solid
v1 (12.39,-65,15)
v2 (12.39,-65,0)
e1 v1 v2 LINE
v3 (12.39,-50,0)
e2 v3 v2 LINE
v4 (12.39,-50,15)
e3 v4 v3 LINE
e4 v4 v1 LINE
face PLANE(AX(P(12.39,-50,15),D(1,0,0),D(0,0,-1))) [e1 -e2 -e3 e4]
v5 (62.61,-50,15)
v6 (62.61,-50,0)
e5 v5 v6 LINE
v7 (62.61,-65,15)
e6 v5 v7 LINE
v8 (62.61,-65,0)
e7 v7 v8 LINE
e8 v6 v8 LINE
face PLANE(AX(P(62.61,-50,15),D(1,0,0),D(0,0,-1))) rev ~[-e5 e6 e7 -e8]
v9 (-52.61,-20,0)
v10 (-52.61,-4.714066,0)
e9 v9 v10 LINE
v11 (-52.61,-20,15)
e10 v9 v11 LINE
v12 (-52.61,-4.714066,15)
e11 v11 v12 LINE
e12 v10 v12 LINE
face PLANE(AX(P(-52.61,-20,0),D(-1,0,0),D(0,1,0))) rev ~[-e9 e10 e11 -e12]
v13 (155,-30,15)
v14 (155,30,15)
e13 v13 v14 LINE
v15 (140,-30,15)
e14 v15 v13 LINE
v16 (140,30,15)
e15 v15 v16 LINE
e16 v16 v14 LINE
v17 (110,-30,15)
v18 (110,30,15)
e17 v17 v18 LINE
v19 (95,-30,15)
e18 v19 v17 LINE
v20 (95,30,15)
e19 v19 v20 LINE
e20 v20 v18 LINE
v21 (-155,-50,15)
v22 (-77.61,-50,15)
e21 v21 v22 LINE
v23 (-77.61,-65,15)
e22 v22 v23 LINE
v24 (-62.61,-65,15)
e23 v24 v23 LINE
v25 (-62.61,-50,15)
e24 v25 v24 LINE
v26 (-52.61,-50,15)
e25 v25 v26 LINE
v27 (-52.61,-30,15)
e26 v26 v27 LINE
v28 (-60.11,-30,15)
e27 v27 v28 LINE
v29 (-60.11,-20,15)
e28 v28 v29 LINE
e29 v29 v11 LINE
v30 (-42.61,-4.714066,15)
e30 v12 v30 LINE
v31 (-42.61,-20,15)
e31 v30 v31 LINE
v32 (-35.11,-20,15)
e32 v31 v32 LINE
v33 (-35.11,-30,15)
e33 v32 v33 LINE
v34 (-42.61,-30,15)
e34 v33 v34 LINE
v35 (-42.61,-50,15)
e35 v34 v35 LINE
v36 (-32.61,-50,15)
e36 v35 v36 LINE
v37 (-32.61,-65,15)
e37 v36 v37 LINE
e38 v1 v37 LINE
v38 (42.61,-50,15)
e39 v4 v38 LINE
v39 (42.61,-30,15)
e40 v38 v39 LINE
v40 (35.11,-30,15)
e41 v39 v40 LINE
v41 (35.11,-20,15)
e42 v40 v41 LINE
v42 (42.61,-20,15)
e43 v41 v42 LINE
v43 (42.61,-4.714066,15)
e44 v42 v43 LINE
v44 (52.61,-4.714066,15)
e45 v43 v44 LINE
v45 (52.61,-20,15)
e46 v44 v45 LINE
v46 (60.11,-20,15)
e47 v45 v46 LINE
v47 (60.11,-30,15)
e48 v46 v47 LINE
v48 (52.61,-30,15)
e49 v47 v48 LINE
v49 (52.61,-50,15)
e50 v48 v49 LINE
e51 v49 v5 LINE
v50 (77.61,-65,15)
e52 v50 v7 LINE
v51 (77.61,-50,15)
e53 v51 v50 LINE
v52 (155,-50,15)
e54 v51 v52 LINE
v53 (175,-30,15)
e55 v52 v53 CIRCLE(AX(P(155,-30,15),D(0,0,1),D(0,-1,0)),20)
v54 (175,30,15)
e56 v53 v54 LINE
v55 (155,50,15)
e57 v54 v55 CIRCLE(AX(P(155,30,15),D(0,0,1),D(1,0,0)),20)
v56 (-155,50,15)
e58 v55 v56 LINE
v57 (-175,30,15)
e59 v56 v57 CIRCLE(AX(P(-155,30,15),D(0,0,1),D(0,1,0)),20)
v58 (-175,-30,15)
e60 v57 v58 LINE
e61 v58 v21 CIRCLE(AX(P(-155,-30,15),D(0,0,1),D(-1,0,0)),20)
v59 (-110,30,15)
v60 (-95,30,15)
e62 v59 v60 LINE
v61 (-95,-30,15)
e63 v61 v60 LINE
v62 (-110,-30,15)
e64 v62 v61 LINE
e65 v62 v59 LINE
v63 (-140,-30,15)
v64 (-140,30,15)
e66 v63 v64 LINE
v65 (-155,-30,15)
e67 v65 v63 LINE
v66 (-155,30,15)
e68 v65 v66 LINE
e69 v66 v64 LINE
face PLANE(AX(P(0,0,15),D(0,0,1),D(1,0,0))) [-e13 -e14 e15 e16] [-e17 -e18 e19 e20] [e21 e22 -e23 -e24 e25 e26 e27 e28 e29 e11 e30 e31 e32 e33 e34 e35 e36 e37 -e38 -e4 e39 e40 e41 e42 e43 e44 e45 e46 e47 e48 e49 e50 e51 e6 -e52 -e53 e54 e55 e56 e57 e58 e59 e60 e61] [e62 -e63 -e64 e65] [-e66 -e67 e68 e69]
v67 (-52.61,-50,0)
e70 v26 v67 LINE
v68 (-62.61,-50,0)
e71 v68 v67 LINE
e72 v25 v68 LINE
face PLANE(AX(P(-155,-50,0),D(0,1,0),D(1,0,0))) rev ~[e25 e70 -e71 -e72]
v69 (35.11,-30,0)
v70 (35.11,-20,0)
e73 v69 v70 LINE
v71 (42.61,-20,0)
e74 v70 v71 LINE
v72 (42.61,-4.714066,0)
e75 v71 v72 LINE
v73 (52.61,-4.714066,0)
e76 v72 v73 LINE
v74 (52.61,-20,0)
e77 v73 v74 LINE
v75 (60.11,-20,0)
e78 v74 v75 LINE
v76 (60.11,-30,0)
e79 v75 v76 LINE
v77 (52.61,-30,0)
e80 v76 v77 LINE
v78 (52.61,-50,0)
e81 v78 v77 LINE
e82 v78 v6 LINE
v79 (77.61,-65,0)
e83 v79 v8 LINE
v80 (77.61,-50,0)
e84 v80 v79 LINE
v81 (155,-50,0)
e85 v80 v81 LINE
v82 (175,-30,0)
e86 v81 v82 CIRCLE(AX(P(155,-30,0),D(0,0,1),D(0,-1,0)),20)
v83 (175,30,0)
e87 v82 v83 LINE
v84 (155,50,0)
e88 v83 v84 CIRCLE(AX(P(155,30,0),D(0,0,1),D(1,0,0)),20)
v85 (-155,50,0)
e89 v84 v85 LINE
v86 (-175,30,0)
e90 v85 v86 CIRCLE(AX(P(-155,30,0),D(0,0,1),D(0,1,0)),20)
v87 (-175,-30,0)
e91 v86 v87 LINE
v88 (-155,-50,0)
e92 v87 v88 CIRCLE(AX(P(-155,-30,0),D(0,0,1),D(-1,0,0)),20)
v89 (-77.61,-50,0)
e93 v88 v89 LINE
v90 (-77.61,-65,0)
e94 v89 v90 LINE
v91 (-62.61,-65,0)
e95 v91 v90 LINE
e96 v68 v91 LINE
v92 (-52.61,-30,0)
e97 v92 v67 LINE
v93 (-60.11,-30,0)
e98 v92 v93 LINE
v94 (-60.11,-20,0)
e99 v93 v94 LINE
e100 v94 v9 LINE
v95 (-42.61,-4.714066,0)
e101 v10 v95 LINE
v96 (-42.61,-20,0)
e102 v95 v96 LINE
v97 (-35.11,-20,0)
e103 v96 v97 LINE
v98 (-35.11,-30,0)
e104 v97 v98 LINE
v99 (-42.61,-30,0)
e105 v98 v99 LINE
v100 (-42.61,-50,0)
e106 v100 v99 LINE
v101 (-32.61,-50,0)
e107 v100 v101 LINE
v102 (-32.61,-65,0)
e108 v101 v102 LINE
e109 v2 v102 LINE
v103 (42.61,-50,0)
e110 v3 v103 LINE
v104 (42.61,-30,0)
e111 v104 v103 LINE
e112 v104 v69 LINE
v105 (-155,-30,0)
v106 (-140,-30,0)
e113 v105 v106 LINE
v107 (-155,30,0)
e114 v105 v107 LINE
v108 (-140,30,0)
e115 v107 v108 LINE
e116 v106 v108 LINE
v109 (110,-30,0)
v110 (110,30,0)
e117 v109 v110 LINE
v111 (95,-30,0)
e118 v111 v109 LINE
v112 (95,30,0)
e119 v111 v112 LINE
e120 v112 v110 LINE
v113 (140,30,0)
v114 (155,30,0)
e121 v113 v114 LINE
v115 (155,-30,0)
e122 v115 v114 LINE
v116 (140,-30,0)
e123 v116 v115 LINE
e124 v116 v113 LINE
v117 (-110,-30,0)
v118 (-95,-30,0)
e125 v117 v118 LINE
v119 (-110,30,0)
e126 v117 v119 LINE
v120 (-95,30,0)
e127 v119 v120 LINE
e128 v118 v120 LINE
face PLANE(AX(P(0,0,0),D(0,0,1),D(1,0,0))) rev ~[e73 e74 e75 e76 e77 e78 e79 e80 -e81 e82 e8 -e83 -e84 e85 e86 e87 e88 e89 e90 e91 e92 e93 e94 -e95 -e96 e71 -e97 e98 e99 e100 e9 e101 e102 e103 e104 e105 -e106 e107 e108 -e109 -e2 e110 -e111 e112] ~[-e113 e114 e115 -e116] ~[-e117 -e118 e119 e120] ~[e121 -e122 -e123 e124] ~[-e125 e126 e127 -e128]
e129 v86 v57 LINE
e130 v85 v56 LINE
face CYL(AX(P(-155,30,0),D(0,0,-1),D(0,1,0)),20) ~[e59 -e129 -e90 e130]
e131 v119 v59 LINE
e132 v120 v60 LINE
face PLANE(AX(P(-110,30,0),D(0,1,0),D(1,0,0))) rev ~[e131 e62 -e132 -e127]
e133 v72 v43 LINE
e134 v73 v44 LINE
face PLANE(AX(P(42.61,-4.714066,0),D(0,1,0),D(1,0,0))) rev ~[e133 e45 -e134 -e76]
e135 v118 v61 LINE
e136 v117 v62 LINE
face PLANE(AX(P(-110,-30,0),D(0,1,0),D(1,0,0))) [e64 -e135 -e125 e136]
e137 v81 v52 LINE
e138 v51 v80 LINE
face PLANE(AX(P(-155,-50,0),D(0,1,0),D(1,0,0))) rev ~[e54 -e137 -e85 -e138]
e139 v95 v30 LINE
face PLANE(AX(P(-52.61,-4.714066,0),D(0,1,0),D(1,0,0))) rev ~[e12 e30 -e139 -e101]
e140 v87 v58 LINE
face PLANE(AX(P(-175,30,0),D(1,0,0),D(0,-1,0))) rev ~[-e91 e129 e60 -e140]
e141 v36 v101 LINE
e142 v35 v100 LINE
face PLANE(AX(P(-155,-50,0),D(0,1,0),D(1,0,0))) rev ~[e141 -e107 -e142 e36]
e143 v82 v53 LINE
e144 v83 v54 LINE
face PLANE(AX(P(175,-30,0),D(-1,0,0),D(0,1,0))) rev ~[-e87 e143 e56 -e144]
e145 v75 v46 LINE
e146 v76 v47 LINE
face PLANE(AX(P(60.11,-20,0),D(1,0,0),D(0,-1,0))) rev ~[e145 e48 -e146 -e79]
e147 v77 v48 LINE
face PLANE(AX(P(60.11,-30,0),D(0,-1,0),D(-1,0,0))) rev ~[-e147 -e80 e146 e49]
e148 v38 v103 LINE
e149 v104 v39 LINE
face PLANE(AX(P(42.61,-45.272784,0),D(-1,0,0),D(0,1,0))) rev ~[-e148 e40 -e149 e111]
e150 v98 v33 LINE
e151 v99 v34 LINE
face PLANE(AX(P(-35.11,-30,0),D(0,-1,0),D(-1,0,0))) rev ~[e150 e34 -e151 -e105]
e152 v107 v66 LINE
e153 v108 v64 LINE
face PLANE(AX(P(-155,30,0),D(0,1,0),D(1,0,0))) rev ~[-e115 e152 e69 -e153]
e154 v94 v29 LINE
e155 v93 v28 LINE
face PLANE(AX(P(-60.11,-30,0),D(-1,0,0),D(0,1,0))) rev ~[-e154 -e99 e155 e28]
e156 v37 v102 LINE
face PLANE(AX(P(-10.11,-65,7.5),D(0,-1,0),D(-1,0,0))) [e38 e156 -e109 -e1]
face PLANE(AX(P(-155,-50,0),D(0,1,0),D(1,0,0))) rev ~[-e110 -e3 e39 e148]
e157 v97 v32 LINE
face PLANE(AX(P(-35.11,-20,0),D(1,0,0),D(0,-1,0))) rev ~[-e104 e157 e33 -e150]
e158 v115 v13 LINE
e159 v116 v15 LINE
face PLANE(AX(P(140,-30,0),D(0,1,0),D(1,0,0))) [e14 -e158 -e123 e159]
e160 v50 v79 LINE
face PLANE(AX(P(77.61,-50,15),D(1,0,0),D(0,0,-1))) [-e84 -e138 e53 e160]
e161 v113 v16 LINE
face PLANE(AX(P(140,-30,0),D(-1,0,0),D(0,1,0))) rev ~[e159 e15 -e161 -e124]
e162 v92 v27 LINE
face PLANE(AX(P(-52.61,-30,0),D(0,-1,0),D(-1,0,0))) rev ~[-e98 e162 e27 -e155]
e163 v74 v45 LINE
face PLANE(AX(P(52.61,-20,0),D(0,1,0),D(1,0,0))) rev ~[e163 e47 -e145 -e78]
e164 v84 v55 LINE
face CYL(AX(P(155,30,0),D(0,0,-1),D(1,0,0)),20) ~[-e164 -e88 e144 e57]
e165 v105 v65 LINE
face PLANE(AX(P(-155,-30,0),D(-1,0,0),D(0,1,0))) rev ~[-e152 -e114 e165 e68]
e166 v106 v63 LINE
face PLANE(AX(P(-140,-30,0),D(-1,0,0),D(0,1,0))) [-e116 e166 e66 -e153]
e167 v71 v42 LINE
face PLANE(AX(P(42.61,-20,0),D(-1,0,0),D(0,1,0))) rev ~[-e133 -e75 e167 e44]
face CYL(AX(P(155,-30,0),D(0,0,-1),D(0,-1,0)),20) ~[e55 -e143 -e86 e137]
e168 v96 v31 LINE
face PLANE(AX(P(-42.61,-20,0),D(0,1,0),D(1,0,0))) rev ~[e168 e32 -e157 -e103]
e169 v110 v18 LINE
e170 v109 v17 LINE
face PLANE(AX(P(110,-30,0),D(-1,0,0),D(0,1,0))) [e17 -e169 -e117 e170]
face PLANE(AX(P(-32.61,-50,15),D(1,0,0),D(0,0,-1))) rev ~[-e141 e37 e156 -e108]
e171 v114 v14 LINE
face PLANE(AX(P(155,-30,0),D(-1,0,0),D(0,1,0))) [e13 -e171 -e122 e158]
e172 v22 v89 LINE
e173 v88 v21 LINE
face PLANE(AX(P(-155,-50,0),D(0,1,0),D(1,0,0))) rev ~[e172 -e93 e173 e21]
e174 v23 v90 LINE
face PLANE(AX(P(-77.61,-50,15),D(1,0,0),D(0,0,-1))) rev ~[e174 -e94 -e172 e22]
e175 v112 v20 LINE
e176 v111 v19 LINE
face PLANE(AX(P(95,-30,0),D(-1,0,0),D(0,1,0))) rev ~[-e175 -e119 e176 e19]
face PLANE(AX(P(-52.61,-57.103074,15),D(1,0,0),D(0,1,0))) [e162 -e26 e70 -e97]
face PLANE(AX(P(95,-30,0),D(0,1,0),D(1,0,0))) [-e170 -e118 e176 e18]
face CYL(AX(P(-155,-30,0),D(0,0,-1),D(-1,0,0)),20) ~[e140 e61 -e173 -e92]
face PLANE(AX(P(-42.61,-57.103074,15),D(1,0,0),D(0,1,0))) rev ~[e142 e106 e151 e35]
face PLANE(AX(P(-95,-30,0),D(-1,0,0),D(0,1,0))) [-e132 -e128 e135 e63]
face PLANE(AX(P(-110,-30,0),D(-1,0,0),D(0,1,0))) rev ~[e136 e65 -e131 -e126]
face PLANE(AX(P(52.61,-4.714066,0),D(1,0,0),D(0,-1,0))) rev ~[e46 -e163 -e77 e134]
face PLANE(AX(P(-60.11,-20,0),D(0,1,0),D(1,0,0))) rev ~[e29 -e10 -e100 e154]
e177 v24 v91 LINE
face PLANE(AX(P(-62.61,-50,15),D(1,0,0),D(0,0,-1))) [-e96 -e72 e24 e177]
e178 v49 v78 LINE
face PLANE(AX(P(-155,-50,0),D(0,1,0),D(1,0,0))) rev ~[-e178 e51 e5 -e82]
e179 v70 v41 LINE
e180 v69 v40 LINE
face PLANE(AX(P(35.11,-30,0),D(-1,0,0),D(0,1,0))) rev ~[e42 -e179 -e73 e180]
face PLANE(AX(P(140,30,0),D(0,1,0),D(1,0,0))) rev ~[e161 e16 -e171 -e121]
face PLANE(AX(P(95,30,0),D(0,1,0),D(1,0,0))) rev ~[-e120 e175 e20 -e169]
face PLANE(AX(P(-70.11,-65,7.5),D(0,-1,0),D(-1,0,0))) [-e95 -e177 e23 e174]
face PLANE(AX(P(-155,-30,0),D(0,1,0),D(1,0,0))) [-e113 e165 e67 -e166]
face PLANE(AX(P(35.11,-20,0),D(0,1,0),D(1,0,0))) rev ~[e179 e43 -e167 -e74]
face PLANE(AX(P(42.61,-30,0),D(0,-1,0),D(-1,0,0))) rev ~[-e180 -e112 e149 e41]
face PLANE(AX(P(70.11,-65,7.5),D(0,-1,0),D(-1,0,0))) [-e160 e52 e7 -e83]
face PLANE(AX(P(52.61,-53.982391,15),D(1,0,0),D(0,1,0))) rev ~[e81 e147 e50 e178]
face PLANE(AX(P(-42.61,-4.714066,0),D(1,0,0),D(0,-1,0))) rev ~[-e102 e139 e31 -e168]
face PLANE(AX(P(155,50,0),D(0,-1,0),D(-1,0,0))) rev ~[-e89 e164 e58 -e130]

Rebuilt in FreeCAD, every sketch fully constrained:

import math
import FreeCAD as App
import Part
import Sketcher
from FreeCAD import Vector
Q = App.Units.Quantity


def add_polygon(sketch, points):
    """Adds a closed chain of lines whose ends are joined by coincident constraints."""
    first, n = sketch.GeometryCount, len(points)
    for a, b in zip(points, points[1:] + points[:1]):
        sketch.addGeometry(Part.LineSegment(App.Vector(*a, 0), App.Vector(*b, 0)), False)
    for i in range(n):
        sketch.addConstraint(Sketcher.Constraint("Coincident", first + i, 2, first + (i + 1) % n, 1))

doc = App.newDocument("Part")
body = doc.addObject("PartDesign::Body", "Body")

# Sketch on XY plane
sketch1 = body.newObject("Sketcher::SketchObject", "Sketch")
sketch1.AttachmentSupport = (doc.getObject("XY_Plane"), [""])
sketch1.MapMode = "FlatFace"
sketch1.addGeometry(Part.ArcOfCircle(Part.Circle(Vector(-155, -30, 0), Vector(0, 0, 1), 20), math.radians(180), math.radians(270)), False)  # 0
sketch1.addGeometry(Part.LineSegment(Vector(-155, -50, 0), Vector(155, -50, 0)), False)  # 1
sketch1.addGeometry(Part.ArcOfCircle(Part.Circle(Vector(155, -30, 0), Vector(0, 0, 1), 20), math.radians(-90), math.radians(0)), False)  # 2
sketch1.addGeometry(Part.LineSegment(Vector(175, -30, 0), Vector(175, 30, 0)), False)  # 3
sketch1.addGeometry(Part.ArcOfCircle(Part.Circle(Vector(155, 30, 0), Vector(0, 0, 1), 20), math.radians(0), math.radians(90)), False)  # 4
sketch1.addGeometry(Part.LineSegment(Vector(155, 50, 0), Vector(-155, 50, 0)), False)  # 5
sketch1.addGeometry(Part.ArcOfCircle(Part.Circle(Vector(-155, 30, 0), Vector(0, 0, 1), 20), math.radians(90), math.radians(180)), False)  # 6
sketch1.addGeometry(Part.LineSegment(Vector(-175, 30, 0), Vector(-175, -30, 0)), False)  # 7
add_polygon(sketch1, [(-53, -45), (-53, -30), (-60, -30), (-60, -20), (-53, -20), (-53, -5), (-43, -5), (-43, -20), (-35, -20), (-35, -30), (-43, -30), (-43, -45)])  # lines 8-19
add_polygon(sketch1, [(43, -45), (43, -30), (35, -30), (35, -20), (43, -20), (43, -5), (53, -5), (53, -20), (60, -20), (60, -30), (53, -30), (53, -45)])  # lines 20-31
add_polygon(sketch1, [(-140, -30), (-155, -30), (-155, 30), (-140, 30)])  # lines 32-35
add_polygon(sketch1, [(-95, -30), (-110, -30), (-110, 30), (-95, 30)])  # lines 36-39
add_polygon(sketch1, [(110, -30), (95, -30), (95, 30), (110, 30)])  # lines 40-43
add_polygon(sketch1, [(155, -30), (140, -30), (140, 30), (155, 30)])  # lines 44-47
sketch1.addConstraint([
    Sketcher.Constraint("Tangent", 0, 2, 1, 1),
    Sketcher.Constraint("Tangent", 1, 2, 2, 1),
    Sketcher.Constraint("Tangent", 2, 2, 3, 1),
    Sketcher.Constraint("Tangent", 3, 2, 4, 1),
    Sketcher.Constraint("Tangent", 4, 2, 5, 1),
    Sketcher.Constraint("Tangent", 5, 2, 6, 1),
    Sketcher.Constraint("Tangent", 6, 2, 7, 1),
    Sketcher.Constraint("Tangent", 7, 2, 0, 1),
    Sketcher.Constraint("Horizontal", 1),
    Sketcher.Constraint("Vertical", 3),
    Sketcher.Constraint("Horizontal", 5),
    Sketcher.Constraint("Vertical", 7),
    Sketcher.Constraint("Vertical", 8),
    Sketcher.Constraint("Horizontal", 9),
    Sketcher.Constraint("Vertical", 10),
    Sketcher.Constraint("Horizontal", 11),
    Sketcher.Constraint("Vertical", 12),
    Sketcher.Constraint("Horizontal", 13),
    Sketcher.Constraint("Vertical", 14),
    Sketcher.Constraint("Horizontal", 15),
    Sketcher.Constraint("Vertical", 16),
    Sketcher.Constraint("Horizontal", 17),
    Sketcher.Constraint("Vertical", 18),
    Sketcher.Constraint("Horizontal", 19),
    Sketcher.Constraint("Vertical", 20),
    Sketcher.Constraint("Horizontal", 21),
    Sketcher.Constraint("Vertical", 22),
    Sketcher.Constraint("Horizontal", 23),
    Sketcher.Constraint("Vertical", 24),
    Sketcher.Constraint("Horizontal", 25),
    Sketcher.Constraint("Vertical", 26),
    Sketcher.Constraint("Horizontal", 27),
    Sketcher.Constraint("Vertical", 28),
    Sketcher.Constraint("Horizontal", 29),
    Sketcher.Constraint("Vertical", 30),
    Sketcher.Constraint("Horizontal", 31),
    Sketcher.Constraint("Horizontal", 32),
    Sketcher.Constraint("Vertical", 33),
    Sketcher.Constraint("Horizontal", 34),
    Sketcher.Constraint("Vertical", 35),
    Sketcher.Constraint("Horizontal", 36),
    Sketcher.Constraint("Vertical", 37),
    Sketcher.Constraint("Horizontal", 38),
    Sketcher.Constraint("Vertical", 39),
    Sketcher.Constraint("Horizontal", 40),
    Sketcher.Constraint("Vertical", 41),
    Sketcher.Constraint("Horizontal", 42),
    Sketcher.Constraint("Vertical", 43),
    Sketcher.Constraint("Horizontal", 44),
    Sketcher.Constraint("Vertical", 45),
    Sketcher.Constraint("Horizontal", 46),
    Sketcher.Constraint("Vertical", 47),
    Sketcher.Constraint("Coincident", 32, 2, 0, 3),
    Sketcher.Constraint("Coincident", 33, 2, 6, 3),
    Sketcher.Constraint("Coincident", 46, 2, 4, 3),
    Sketcher.Constraint("Coincident", 47, 2, 2, 3),
    Sketcher.Constraint("Equal", 0, 2),
    Sketcher.Constraint("Symmetric", 0, 3, 4, 3, -1, 1),
    Sketcher.Constraint("Symmetric", 38, 2, 40, 2, -1, 1),
    Sketcher.Constraint("Symmetric", 36, 2, 42, 2, -1, 1),
    Sketcher.Constraint("Symmetric", 17, 2, 20, 2, -2),
    Sketcher.Constraint("Symmetric", 15, 2, 22, 2, -2),
    Sketcher.Constraint("Symmetric", 13, 2, 24, 2, -2),
    Sketcher.Constraint("Symmetric", 11, 2, 26, 2, -2),
    Sketcher.Constraint("Symmetric", 9, 2, 28, 2, -2),
    Sketcher.Constraint("Symmetric", 19, 2, 30, 2, -2),
    Sketcher.Constraint("Horizontal", 7, 2, 8, 2),
    Sketcher.Constraint("Horizontal", 11, 2, 14, 2),
    Sketcher.Constraint("Horizontal", 9, 2, 16, 2),
    Sketcher.Constraint("Horizontal", 35, 2, 36, 2),
    Sketcher.Constraint("Horizontal", 34, 2, 37, 2),
    Sketcher.Constraint("Vertical", 8, 2, 11, 2),
    Sketcher.Constraint("Vertical", 14, 2, 17, 2),
    Sketcher.Constraint("Equal", 11, 15),
    Sketcher.Constraint("Equal", 34, 36),
    Sketcher.Constraint("Equal", 42, 44),
    Sketcher.Constraint("Equal", 31, 10),
    Sketcher.Constraint("Radius", 0, Q("20 mm")),
    Sketcher.Constraint("DistanceX", 1, 1, 1, 2, Q("310 mm")),
    Sketcher.Constraint("DistanceX", 13, 1, 13, 2, Q("10 mm")),
    Sketcher.Constraint("DistanceX", 32, 2, 32, 1, Q("15 mm")),
    Sketcher.Constraint("DistanceY", 3, 1, 3, 2, Q("60 mm")),
    Sketcher.Constraint("DistanceX", 9, 2, 9, 1, Q("7.5 mm")),
    Sketcher.Constraint("DistanceX", 36, 2, -1, 1, Q("110 mm")),
    Sketcher.Constraint("DistanceX", 8, 2, -1, 1, Q("52.61 mm")),
    Sketcher.Constraint("DistanceY", 8, 1, 8, 2, Q("15.272784 mm")),
    Sketcher.Constraint("DistanceY", 12, 1, 12, 2, Q("15.285934 mm")),
])
pad1 = body.newObject("PartDesign::Pad", "Pad")
pad1.Profile = sketch1
pad1.Length = 15

# Sketch on XY plane
sketch2 = body.newObject("Sketcher::SketchObject", "Sketch001")
sketch2.AttachmentSupport = (doc.getObject("XY_Plane"), [""])
sketch2.MapMode = "FlatFace"
sketch2.AttachmentOffset = App.Placement(Vector(0, 0, 15), App.Rotation())
add_polygon(sketch2, [(43, -45), (43, -54), (53, -54), (53, -45)])  # lines 0-3
add_polygon(sketch2, [(-53, -45), (-53, -57), (-43, -57), (-43, -45)])  # lines 4-7
sketch2.addConstraint([
    Sketcher.Constraint("Vertical", 0),
    Sketcher.Constraint("Horizontal", 1),
    Sketcher.Constraint("Vertical", 2),
    Sketcher.Constraint("Horizontal", 3),
    Sketcher.Constraint("Vertical", 4),
    Sketcher.Constraint("Horizontal", 5),
    Sketcher.Constraint("Vertical", 6),
    Sketcher.Constraint("Horizontal", 7),
    Sketcher.Constraint("Symmetric", 3, 2, 6, 2, -2),
    Sketcher.Constraint("Equal", 3, 5),
    Sketcher.Constraint("DistanceX", 1, 1, 1, 2, Q("10 mm")),
    Sketcher.Constraint("DistanceX", -1, 1, 0, 2, Q("42.61 mm")),
    Sketcher.Constraint("DistanceY", 4, 2, 4, 1, Q("11.83029 mm")),
    Sketcher.Constraint("DistanceY", 0, 2, 0, 1, Q("8.709607 mm")),
    Sketcher.Constraint("DistanceY", 0, 2, -1, 1, Q("53.982391 mm")),
])
pocket1 = body.newObject("PartDesign::Pocket", "Pocket")
pocket1.Profile = sketch2
pocket1.Type = "ThroughAll"

# Sketch on XZ plane
sketch3 = body.newObject("Sketcher::SketchObject", "Sketch002")
sketch3.AttachmentSupport = (doc.getObject("XZ_Plane"), [""])
sketch3.MapMode = "FlatFace"
sketch3.AttachmentOffset = App.Placement(Vector(0, 0, 50), App.Rotation())
add_polygon(sketch3, [(78, 0), (78, 15), (63, 15), (63, 0)])  # lines 0-3
add_polygon(sketch3, [(12, 0), (12, 15), (-33, 15), (-33, 0)])  # lines 4-7
add_polygon(sketch3, [(-63, 0), (-63, 15), (-78, 15), (-78, 0)])  # lines 8-11
sketch3.addConstraint([
    Sketcher.Constraint("Vertical", 0),
    Sketcher.Constraint("Horizontal", 1),
    Sketcher.Constraint("Vertical", 2),
    Sketcher.Constraint("Horizontal", 3),
    Sketcher.Constraint("Vertical", 4),
    Sketcher.Constraint("Horizontal", 5),
    Sketcher.Constraint("Vertical", 6),
    Sketcher.Constraint("Horizontal", 7),
    Sketcher.Constraint("Vertical", 8),
    Sketcher.Constraint("Horizontal", 9),
    Sketcher.Constraint("Vertical", 10),
    Sketcher.Constraint("Horizontal", 11),
    Sketcher.Constraint("Symmetric", 3, 2, 10, 2, -1, 1),
    Sketcher.Constraint("Symmetric", 1, 2, 8, 2, -2),
    Sketcher.Constraint("PointOnObject", 2, 2, -1),
    Sketcher.Constraint("PointOnObject", 6, 2, -1),
    Sketcher.Constraint("Horizontal", 1, 2, 4, 2),
    Sketcher.Constraint("Equal", 11, 0),
    Sketcher.Constraint("DistanceX", 1, 2, 1, 1, Q("15 mm")),
    Sketcher.Constraint("DistanceX", 5, 2, 5, 1, Q("45 mm")),
    Sketcher.Constraint("DistanceX", 8, 2, 5, 2, Q("30 mm")),
    Sketcher.Constraint("DistanceX", -1, 1, 0, 2, Q("77.61 mm")),
])
pad2 = body.newObject("PartDesign::Pad", "Pad001")
pad2.Profile = sketch3
pad2.Length = 15

doc.recompute()
